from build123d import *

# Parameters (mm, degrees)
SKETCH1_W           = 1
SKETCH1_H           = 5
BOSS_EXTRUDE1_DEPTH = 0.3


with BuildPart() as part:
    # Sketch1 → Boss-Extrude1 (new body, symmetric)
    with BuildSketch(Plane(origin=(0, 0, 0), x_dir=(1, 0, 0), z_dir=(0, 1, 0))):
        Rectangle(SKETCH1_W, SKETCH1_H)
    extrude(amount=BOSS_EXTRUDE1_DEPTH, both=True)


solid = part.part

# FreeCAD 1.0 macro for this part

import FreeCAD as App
import Part
import Sketcher
from FreeCAD import Vector

doc = App.newDocument("Part")
params = doc.addObject("Spreadsheet::Sheet", "Params")
for row, (alias, value) in enumerate([
    ("sketch1_width", "1 mm"),
    ("sketch1_height", "5 mm"),
    ("pad1_length", "0.6 mm"),
], start=1):
    params.set(f"A{row}", alias)
    params.set(f"B{row}", "=" + value)
    params.setAlias(f"B{row}", alias)

body = doc.addObject("PartDesign::Body", "Body")

sketch1 = body.newObject("Sketcher::SketchObject", "Sketch")
sketch1.AttachmentSupport = (doc.getObject("XZ_Plane"), [""])
sketch1.MapMode = "FlatFace"
sketch1.addGeometry([
    Part.LineSegment(Vector(-0.5, -2.5, 0), Vector(-0.5, 2.5, 0)),
    Part.LineSegment(Vector(-0.5, 2.5, 0), Vector(0.5, 2.5, 0)),
    Part.LineSegment(Vector(0.5, 2.5, 0), Vector(0.5, -2.5, 0)),
    Part.LineSegment(Vector(0.5, -2.5, 0), Vector(-0.5, -2.5, 0)),
], False)
sketch1.addConstraint([
    Sketcher.Constraint("Coincident", 0, 2, 1, 1),
    Sketcher.Constraint("Coincident", 1, 2, 2, 1),
    Sketcher.Constraint("Coincident", 2, 2, 3, 1),
    Sketcher.Constraint("Coincident", 3, 2, 0, 1),
    Sketcher.Constraint("Vertical", 0),
    Sketcher.Constraint("Horizontal", 1),
    Sketcher.Constraint("Vertical", 2),
    Sketcher.Constraint("Horizontal", 3),
    Sketcher.Constraint("Symmetric", 0, 2, 2, 2, -1, 1),
    Sketcher.Constraint("DistanceX", 1, 1, 1, 2, 1.0),
    Sketcher.Constraint("DistanceY", 0, 1, 0, 2, 5.0),
])
sketch1.setExpression("Constraints[9]", "Params.sketch1_width")
sketch1.setExpression("Constraints[10]", "Params.sketch1_height")
pad1 = body.newObject("PartDesign::Pad", "Pad")
pad1.Profile = sketch1
pad1.setExpression("Length", "Params.pad1_length")
pad1.Midplane = True

doc.recompute()
